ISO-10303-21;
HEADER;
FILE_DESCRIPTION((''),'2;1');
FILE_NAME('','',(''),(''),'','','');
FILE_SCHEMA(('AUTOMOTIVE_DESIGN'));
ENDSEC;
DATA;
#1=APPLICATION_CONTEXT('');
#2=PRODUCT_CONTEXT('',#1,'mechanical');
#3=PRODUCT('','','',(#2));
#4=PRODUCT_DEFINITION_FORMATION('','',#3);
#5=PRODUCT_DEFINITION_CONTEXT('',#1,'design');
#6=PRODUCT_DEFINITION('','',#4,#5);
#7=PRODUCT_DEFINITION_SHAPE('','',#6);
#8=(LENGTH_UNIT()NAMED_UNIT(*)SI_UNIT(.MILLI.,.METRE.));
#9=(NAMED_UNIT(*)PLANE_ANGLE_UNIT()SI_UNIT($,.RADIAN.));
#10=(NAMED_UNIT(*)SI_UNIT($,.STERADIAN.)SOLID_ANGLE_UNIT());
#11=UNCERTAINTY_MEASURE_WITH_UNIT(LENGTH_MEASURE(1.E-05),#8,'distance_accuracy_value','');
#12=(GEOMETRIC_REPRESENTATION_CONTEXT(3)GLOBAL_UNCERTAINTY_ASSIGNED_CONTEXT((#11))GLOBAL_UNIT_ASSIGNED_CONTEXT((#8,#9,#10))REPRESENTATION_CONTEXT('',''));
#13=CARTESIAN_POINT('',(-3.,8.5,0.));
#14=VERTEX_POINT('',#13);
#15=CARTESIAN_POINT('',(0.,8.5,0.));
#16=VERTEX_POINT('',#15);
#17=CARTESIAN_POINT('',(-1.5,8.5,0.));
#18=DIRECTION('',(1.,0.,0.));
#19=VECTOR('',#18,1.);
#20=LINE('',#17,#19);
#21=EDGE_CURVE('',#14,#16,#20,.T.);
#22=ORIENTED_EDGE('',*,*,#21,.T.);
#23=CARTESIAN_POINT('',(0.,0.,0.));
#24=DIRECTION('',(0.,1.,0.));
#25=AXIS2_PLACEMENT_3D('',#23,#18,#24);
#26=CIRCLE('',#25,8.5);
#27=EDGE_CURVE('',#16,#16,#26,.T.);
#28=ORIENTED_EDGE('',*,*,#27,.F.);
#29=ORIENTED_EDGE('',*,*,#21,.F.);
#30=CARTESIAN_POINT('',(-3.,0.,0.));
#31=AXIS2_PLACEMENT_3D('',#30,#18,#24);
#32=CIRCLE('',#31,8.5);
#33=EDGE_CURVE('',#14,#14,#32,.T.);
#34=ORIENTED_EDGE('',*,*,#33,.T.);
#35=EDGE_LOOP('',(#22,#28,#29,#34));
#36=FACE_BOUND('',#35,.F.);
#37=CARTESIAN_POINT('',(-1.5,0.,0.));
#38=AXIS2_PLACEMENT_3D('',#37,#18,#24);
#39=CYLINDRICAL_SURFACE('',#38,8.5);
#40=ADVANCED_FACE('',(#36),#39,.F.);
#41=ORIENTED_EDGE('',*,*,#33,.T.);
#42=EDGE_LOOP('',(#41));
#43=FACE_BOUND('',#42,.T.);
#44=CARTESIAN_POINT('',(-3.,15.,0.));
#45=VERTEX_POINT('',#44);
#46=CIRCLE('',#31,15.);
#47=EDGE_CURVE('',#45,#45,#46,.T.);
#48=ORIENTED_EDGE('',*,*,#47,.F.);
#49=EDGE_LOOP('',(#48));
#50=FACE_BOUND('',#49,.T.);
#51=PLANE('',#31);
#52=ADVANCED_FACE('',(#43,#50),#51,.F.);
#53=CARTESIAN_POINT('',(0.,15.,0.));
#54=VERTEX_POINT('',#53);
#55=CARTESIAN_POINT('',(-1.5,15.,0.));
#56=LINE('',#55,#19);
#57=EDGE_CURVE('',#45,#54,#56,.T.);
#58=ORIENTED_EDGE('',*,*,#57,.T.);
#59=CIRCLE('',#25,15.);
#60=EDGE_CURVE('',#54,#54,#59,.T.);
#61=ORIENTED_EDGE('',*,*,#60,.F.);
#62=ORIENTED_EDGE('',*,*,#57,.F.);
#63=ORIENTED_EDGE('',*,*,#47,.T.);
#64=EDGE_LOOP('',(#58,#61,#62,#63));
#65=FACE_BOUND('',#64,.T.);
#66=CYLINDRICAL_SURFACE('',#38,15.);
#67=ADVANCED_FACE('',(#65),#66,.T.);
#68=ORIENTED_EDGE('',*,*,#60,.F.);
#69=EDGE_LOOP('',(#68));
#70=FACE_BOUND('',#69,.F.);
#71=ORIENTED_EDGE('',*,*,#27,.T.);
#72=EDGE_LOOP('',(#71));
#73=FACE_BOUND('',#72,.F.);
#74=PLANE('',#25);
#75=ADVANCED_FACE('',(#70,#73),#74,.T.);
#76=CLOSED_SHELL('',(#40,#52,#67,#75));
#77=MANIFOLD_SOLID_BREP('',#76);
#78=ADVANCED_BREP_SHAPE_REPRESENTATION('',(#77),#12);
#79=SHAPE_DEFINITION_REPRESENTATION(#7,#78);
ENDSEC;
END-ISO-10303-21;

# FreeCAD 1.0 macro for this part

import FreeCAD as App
import Part
import Sketcher

V = App.Vector
Q = App.Units.Quantity

doc = App.newDocument("Part")
body = doc.addObject("PartDesign::Body", "Body")

sketch1 = doc.addObject("Sketcher::SketchObject", "Sketch")
body.addObject(sketch1)
sketch1.AttachmentSupport = (doc.XY_Plane, [""])
sketch1.MapMode = "FlatFace"
sketch1.addGeometry(Part.LineSegment(V(-3, 15, 0), V(-3, 8.5, 0)), False)
sketch1.addGeometry(Part.LineSegment(V(-3, 8.5, 0), V(0, 8.5, 0)), False)
sketch1.addGeometry(Part.LineSegment(V(0, 8.5, 0), V(0, 15, 0)), False)
sketch1.addGeometry(Part.LineSegment(V(0, 15, 0), V(-3, 15, 0)), False)
sketch1.addConstraint(Sketcher.Constraint("Coincident", 0, 2, 1, 1))
sketch1.addConstraint(Sketcher.Constraint("Coincident", 1, 2, 2, 1))
sketch1.addConstraint(Sketcher.Constraint("Coincident", 2, 2, 3, 1))
sketch1.addConstraint(Sketcher.Constraint("Coincident", 3, 2, 0, 1))
sketch1.addConstraint(Sketcher.Constraint("Vertical", 0))
sketch1.addConstraint(Sketcher.Constraint("Horizontal", 1))
sketch1.addConstraint(Sketcher.Constraint("Vertical", 2))
sketch1.addConstraint(Sketcher.Constraint("Horizontal", 3))
sketch1.addConstraint(Sketcher.Constraint("PointOnObject", 1, 2, -2))
sketch1.addConstraint(Sketcher.Constraint("DistanceX", 1, 1, 1, 2, Q("3 mm")))
sketch1.addConstraint(Sketcher.Constraint("DistanceY", 0, 2, 0, 1, Q("6.5 mm")))
sketch1.addConstraint(Sketcher.Constraint("DistanceY", -1, 1, 2, 2, Q("15 mm")))
revolution = doc.addObject("PartDesign::Revolution", "Revolution")
body.addObject(revolution)
revolution.Profile = sketch1
revolution.ReferenceAxis = (sketch1, ["H_Axis"])
revolution.Angle = 360

doc.recompute()
